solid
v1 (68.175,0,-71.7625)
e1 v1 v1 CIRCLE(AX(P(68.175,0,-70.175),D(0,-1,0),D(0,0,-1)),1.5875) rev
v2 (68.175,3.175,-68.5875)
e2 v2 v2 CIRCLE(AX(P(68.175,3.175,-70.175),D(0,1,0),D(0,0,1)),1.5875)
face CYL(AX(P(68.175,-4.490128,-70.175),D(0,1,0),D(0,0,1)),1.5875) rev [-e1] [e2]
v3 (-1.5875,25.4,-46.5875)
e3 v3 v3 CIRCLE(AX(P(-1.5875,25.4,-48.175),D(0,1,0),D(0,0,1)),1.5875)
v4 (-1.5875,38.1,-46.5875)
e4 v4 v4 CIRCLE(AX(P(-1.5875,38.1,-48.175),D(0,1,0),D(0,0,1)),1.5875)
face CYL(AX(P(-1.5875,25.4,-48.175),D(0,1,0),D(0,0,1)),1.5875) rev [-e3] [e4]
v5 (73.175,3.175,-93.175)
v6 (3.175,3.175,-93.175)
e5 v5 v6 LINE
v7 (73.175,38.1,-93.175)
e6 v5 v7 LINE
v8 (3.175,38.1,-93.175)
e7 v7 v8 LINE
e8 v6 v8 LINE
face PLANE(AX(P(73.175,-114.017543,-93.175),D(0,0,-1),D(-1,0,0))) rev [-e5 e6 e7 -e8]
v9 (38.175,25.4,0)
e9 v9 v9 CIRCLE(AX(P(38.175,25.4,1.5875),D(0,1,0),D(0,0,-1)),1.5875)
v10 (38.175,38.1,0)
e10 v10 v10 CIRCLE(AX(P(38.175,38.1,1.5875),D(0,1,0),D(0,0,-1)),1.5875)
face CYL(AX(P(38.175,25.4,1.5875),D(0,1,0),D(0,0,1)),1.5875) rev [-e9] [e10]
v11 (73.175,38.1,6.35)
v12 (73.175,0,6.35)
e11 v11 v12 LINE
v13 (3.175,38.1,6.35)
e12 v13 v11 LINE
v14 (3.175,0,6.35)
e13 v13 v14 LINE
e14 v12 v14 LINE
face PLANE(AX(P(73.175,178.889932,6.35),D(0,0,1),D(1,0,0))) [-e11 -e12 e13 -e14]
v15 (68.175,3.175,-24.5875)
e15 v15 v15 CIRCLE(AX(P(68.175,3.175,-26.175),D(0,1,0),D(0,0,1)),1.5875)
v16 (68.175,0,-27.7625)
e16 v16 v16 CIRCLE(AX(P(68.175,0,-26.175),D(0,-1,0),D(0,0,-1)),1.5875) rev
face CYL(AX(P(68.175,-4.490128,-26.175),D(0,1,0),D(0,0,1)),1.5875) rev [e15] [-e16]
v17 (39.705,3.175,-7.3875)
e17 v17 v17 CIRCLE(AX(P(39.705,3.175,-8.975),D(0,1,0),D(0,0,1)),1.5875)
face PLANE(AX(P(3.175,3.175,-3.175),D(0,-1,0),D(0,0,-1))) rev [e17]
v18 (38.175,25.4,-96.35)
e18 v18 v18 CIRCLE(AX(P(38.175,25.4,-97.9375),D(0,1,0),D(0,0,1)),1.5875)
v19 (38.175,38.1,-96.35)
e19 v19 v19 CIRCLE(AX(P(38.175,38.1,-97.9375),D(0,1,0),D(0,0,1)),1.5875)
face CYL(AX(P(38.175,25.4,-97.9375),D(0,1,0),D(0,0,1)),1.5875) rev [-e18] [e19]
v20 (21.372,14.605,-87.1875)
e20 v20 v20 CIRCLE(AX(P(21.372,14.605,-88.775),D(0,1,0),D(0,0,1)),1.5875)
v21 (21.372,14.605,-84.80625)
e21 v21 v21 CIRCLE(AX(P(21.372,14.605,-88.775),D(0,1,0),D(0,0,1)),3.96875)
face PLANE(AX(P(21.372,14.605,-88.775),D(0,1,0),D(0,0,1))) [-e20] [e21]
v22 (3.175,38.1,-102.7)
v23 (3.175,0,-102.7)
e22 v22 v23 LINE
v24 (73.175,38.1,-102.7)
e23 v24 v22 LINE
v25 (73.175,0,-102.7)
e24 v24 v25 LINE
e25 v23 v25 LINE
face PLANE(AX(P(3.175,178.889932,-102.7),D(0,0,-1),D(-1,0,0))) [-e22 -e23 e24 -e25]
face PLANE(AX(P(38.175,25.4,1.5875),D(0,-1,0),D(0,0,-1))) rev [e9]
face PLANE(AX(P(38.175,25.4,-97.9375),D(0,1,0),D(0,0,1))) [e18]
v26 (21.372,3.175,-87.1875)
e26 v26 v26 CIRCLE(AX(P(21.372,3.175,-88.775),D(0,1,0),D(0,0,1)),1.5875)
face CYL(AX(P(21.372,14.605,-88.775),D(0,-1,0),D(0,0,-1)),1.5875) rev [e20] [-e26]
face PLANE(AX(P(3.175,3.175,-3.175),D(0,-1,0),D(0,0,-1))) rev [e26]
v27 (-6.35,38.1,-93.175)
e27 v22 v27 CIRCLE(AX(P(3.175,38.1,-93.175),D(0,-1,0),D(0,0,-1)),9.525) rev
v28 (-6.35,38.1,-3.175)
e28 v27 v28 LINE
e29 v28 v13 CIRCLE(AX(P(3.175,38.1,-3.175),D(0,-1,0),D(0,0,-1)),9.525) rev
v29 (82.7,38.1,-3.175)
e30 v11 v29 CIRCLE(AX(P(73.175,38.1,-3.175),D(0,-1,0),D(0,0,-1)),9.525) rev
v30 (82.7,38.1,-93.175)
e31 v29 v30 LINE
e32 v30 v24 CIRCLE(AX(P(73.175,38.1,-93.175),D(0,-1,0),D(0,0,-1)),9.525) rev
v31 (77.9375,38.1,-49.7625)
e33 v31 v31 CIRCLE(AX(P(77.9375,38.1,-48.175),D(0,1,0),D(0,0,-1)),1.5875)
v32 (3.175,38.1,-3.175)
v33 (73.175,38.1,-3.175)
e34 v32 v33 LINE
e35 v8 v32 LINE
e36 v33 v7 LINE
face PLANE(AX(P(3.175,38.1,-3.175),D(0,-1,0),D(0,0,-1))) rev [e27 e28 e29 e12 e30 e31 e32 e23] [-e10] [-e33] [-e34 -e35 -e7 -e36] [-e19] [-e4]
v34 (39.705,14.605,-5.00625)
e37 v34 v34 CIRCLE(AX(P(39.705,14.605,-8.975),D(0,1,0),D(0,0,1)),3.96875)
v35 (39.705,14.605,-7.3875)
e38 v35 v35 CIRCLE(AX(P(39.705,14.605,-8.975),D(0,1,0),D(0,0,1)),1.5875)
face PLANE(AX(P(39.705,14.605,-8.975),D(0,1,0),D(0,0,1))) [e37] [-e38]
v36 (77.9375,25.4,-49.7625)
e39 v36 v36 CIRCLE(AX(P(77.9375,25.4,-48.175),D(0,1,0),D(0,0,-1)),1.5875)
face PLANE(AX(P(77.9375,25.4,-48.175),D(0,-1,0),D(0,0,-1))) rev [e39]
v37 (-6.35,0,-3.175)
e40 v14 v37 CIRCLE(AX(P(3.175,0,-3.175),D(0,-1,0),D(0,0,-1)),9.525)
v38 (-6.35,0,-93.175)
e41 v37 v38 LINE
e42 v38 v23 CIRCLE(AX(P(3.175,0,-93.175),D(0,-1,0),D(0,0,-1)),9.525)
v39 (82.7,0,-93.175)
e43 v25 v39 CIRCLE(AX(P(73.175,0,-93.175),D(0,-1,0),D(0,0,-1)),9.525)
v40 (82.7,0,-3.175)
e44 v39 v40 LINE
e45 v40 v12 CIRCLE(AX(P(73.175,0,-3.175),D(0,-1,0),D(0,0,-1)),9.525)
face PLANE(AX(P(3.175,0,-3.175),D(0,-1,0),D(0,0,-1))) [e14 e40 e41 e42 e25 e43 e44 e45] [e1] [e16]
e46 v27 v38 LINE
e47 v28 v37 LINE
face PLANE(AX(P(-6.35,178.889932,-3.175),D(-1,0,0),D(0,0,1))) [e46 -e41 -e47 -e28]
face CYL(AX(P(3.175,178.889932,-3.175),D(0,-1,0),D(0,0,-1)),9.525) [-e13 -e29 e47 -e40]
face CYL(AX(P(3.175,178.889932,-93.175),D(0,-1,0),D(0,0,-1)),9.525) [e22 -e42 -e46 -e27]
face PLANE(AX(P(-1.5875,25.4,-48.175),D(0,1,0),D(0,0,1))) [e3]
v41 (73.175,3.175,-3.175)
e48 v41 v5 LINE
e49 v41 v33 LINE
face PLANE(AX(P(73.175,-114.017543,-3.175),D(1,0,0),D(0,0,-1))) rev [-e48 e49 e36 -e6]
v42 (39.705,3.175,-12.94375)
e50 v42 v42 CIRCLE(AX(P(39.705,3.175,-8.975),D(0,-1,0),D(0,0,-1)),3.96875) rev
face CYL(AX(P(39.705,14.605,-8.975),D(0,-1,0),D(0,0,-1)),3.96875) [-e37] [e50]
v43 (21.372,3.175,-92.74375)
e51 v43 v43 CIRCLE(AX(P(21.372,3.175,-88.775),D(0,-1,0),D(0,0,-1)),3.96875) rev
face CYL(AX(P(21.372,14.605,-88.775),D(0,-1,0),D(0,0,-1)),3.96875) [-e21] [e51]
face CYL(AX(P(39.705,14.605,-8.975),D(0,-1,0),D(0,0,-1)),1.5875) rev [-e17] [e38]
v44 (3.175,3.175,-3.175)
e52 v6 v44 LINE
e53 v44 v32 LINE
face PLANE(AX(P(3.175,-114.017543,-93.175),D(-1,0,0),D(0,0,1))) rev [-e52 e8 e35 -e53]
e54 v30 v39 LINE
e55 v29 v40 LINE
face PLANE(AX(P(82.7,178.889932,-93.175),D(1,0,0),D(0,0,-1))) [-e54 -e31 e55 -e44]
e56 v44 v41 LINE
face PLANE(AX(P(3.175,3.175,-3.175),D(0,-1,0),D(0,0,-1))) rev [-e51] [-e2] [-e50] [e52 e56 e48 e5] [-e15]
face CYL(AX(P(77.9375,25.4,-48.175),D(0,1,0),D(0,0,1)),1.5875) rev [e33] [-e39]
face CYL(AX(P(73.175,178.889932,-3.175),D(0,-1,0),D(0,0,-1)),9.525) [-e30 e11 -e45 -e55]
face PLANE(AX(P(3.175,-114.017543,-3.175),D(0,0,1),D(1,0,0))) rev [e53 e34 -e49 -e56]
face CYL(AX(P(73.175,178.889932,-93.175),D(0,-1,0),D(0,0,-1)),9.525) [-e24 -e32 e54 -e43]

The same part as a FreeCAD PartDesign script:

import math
import FreeCAD as App
import Part
import Sketcher
from FreeCAD import Vector
Q = App.Units.Quantity

doc = App.newDocument("Part")
body = doc.addObject("PartDesign::Body", "Body")

# Sketch on XZ plane
sketch1 = body.newObject("Sketcher::SketchObject", "Sketch")
sketch1.AttachmentSupport = (doc.getObject("XZ_Plane"), [""])
sketch1.MapMode = "FlatFace"
sketch1.addGeometry([
    Part.LineSegment(Vector(3.2, 0, 0), Vector(73.2, 0, 0)),  # 0
    Part.ArcOfCircle(Part.Circle(Vector(73.2, -3.2, 0), Vector(0, 0, 1), 3.2), math.radians(0), math.radians(90)),  # 1
    Part.LineSegment(Vector(76.3, -3.2, 0), Vector(76.3, -93.2, 0)),  # 2
    Part.ArcOfCircle(Part.Circle(Vector(73.2, -93.2, 0), Vector(0, 0, 1), 3.2), math.radians(-90), math.radians(0)),  # 3
    Part.LineSegment(Vector(73.2, -96.4, 0), Vector(3.2, -96.4, 0)),  # 4
    Part.ArcOfCircle(Part.Circle(Vector(3.2, -93.2, 0), Vector(0, 0, 1), 3.2), math.radians(-180), math.radians(-90)),  # 5
    Part.LineSegment(Vector(0, -93.2, 0), Vector(0, -3.2, 0)),  # 6
    Part.ArcOfCircle(Part.Circle(Vector(3.2, -3.2, 0), Vector(0, 0, 1), 3.2), math.radians(90), math.radians(180)),  # 7
], False)
sketch1.addConstraint([
    Sketcher.Constraint("Tangent", 0, 2, 1, 2),
    Sketcher.Constraint("Tangent", 1, 1, 2, 1),
    Sketcher.Constraint("Tangent", 2, 2, 3, 2),
    Sketcher.Constraint("Tangent", 3, 1, 4, 1),
    Sketcher.Constraint("Tangent", 4, 2, 5, 2),
    Sketcher.Constraint("Tangent", 5, 1, 6, 1),
    Sketcher.Constraint("Tangent", 6, 2, 7, 2),
    Sketcher.Constraint("Tangent", 7, 1, 0, 1),
    Sketcher.Constraint("Horizontal", 0),
    Sketcher.Constraint("Vertical", 2),
    Sketcher.Constraint("Horizontal", 4),
    Sketcher.Constraint("Vertical", 6),
    Sketcher.Constraint("Equal", 1, 3),
    Sketcher.Constraint("Equal", 3, 5),
    Sketcher.Constraint("Equal", 5, 7),
    Sketcher.Constraint("PointOnObject", 0, 2, -1),
    Sketcher.Constraint("PointOnObject", 5, 1, -2),
    Sketcher.Constraint("Radius", 1, Q("0.125 in")),
    Sketcher.Constraint("DistanceX", 0, 1, 0, 2, Q("70 mm")),
    Sketcher.Constraint("DistanceY", 2, 2, 2, 1, Q("90 mm")),
])
pad1 = body.newObject("PartDesign::Pad", "Pad")
pad1.Profile = sketch1
pad1.Length = Q("1.5 in")
pad1.Reversed = True

# Sketch on XZ plane
sketch2 = body.newObject("Sketcher::SketchObject", "Sketch001")
sketch2.AttachmentSupport = (doc.getObject("XZ_Plane"), [""])
sketch2.MapMode = "FlatFace"
sketch2.AttachmentOffset = App.Placement(Vector(0, 0, -1.5 * 25.4), App.Rotation())
sketch2.addGeometry([
    Part.LineSegment(Vector(3, -93, 0), Vector(3, -3, 0)),
    Part.LineSegment(Vector(3, -3, 0), Vector(73, -3, 0)),
    Part.LineSegment(Vector(73, -3, 0), Vector(73, -93, 0)),
    Part.LineSegment(Vector(73, -93, 0), Vector(3, -93, 0)),
], False)
sketch2.addConstraint([
    Sketcher.Constraint("Coincident", 0, 2, 1, 1),
    Sketcher.Constraint("Coincident", 1, 2, 2, 1),
    Sketcher.Constraint("Coincident", 2, 2, 3, 1),
    Sketcher.Constraint("Coincident", 3, 2, 0, 1),
    Sketcher.Constraint("Vertical", 0),
    Sketcher.Constraint("Horizontal", 1),
    Sketcher.Constraint("Vertical", 2),
    Sketcher.Constraint("Horizontal", 3),
    Sketcher.Constraint("DistanceX", -1, 1, 0, 2, Q("0.125 in")),
    Sketcher.Constraint("DistanceY", 0, 2, -1, 1, Q("0.125 in")),
    Sketcher.Constraint("DistanceX", 1, 1, 1, 2, Q("70 mm")),
    Sketcher.Constraint("DistanceY", 0, 1, 0, 2, Q("90 mm")),
])
pocket1 = body.newObject("PartDesign::Pocket", "Pocket")
pocket1.Profile = sketch2
pocket1.Length = Q("1.375 in")
pocket1.Reversed = True

# Sketch on XZ plane
sketch3 = body.newObject("Sketcher::SketchObject", "Sketch002")
sketch3.AttachmentSupport = (doc.getObject("XZ_Plane"), [""])
sketch3.MapMode = "FlatFace"
sketch3.AttachmentOffset = App.Placement(Vector(0, 0, -0.125 * 25.4), App.Rotation())
sketch3.addGeometry([
    Part.Circle(Vector(21.4, -88.8, 0), Vector(0, 0, 1), 4),
    Part.Circle(Vector(21.4, -88.8, 0), Vector(0, 0, 1), 1.6),
    Part.Circle(Vector(39.7, -9, 0), Vector(0, 0, 1), 4),
    Part.Circle(Vector(39.7, -9, 0), Vector(0, 0, 1), 1.6),
], False)
sketch3.addConstraint([
    Sketcher.Constraint("Coincident", 1, 3, 0, 3),
    Sketcher.Constraint("Coincident", 3, 3, 2, 3),
    Sketcher.Constraint("Equal", 0, 2),
    Sketcher.Constraint("Equal", 1, 3),
    Sketcher.Constraint("Diameter", 0, Q("0.3125 in")),
    Sketcher.Constraint("Diameter", 1, Q("0.125 in")),
    Sketcher.Constraint("DistanceX", -1, 1, 0, 3, Q("21.372 mm")),
    Sketcher.Constraint("DistanceY", 0, 3, -1, 1, Q("88.775 mm")),
    Sketcher.Constraint("DistanceX", -1, 1, 2, 3, Q("39.705 mm")),
    Sketcher.Constraint("DistanceY", 2, 3, -1, 1, Q("8.975 mm")),
])
pad2 = body.newObject("PartDesign::Pad", "Pad001")
pad2.Profile = sketch3
pad2.Length = Q("0.45 in")
pad2.Reversed = True

# Sketch on XZ plane
sketch4 = body.newObject("Sketcher::SketchObject", "Sketch003")
sketch4.AttachmentSupport = (doc.getObject("XZ_Plane"), [""])
sketch4.MapMode = "FlatFace"
sketch4.addGeometry([
    Part.LineSegment(Vector(-6.3, -3.2, 0), Vector(-6.3, -93.2, 0)),  # 0
    Part.ArcOfCircle(Part.Circle(Vector(3.2, -93.2, 0), Vector(0, 0, 1), 9.5), math.radians(180), math.radians(270)),  # 1
    Part.LineSegment(Vector(3.2, -102.7, 0), Vector(73.2, -102.7, 0)),  # 2
    Part.ArcOfCircle(Part.Circle(Vector(73.2, -93.2, 0), Vector(0, 0, 1), 9.5), math.radians(-90), math.radians(0)),  # 3
    Part.LineSegment(Vector(82.7, -93.2, 0), Vector(82.7, -3.2, 0)),  # 4
    Part.ArcOfCircle(Part.Circle(Vector(73.2, -3.2, 0), Vector(0, 0, 1), 9.5), math.radians(0), math.radians(90)),  # 5
    Part.LineSegment(Vector(73.2, 6.3, 0), Vector(3.2, 6.3, 0)),  # 6
    Part.ArcOfCircle(Part.Circle(Vector(3.2, -3.2, 0), Vector(0, 0, 1), 9.5), math.radians(90), math.radians(180)),  # 7
    Part.LineSegment(Vector(0, -93.2, 0), Vector(0, -3.2, 0)),  # 8
    Part.ArcOfCircle(Part.Circle(Vector(3.2, -3.2, 0), Vector(0, 0, 1), 3.2), math.radians(90), math.radians(180)),  # 9
    Part.LineSegment(Vector(3.2, 0, 0), Vector(73.2, 0, 0)),  # 10
    Part.ArcOfCircle(Part.Circle(Vector(73.2, -3.2, 0), Vector(0, 0, 1), 3.2), math.radians(0), math.radians(90)),  # 11
    Part.LineSegment(Vector(76.3, -3.2, 0), Vector(76.3, -93.2, 0)),  # 12
    Part.ArcOfCircle(Part.Circle(Vector(73.2, -93.2, 0), Vector(0, 0, 1), 3.2), math.radians(-90), math.radians(0)),  # 13
    Part.LineSegment(Vector(73.2, -96.4, 0), Vector(3.2, -96.4, 0)),  # 14
    Part.ArcOfCircle(Part.Circle(Vector(3.2, -93.2, 0), Vector(0, 0, 1), 3.2), math.radians(-180), math.radians(-90)),  # 15
], False)
sketch4.addConstraint([
    Sketcher.Constraint("Tangent", 0, 2, 1, 1),
    Sketcher.Constraint("Tangent", 1, 2, 2, 1),
    Sketcher.Constraint("Tangent", 2, 2, 3, 1),
    Sketcher.Constraint("Tangent", 3, 2, 4, 1),
    Sketcher.Constraint("Tangent", 4, 2, 5, 1),
    Sketcher.Constraint("Tangent", 5, 2, 6, 1),
    Sketcher.Constraint("Tangent", 6, 2, 7, 1),
    Sketcher.Constraint("Tangent", 7, 2, 0, 1),
    Sketcher.Constraint("Tangent", 8, 2, 9, 2),
    Sketcher.Constraint("Tangent", 9, 1, 10, 1),
    Sketcher.Constraint("Tangent", 10, 2, 11, 2),
    Sketcher.Constraint("Tangent", 11, 1, 12, 1),
    Sketcher.Constraint("Tangent", 12, 2, 13, 2),
    Sketcher.Constraint("Tangent", 13, 1, 14, 1),
    Sketcher.Constraint("Tangent", 14, 2, 15, 2),
    Sketcher.Constraint("Tangent", 15, 1, 8, 1),
    Sketcher.Constraint("Vertical", 0),
    Sketcher.Constraint("Horizontal", 2),
    Sketcher.Constraint("Vertical", 4),
    Sketcher.Constraint("Horizontal", 6),
    Sketcher.Constraint("Vertical", 8),
    Sketcher.Constraint("Horizontal", 10),
    Sketcher.Constraint("Vertical", 12),
    Sketcher.Constraint("Horizontal", 14),
    Sketcher.Constraint("Coincident", 9, 3, 7, 3),
    Sketcher.Constraint("Coincident", 11, 3, 5, 3),
    Sketcher.Constraint("Coincident", 13, 3, 3, 3),
    Sketcher.Constraint("Equal", 1, 3),
    Sketcher.Constraint("Equal", 3, 5),
    Sketcher.Constraint("Equal", 5, 7),
    Sketcher.Constraint("Equal", 13, 15),
    Sketcher.Constraint("PointOnObject", 8, 2, -2),
    Sketcher.Constraint("PointOnObject", 9, 1, -1),
    Sketcher.Constraint("Radius", 1, Q("0.375 in")),
    Sketcher.Constraint("Radius", 9, Q("0.125 in")),
    Sketcher.Constraint("DistanceX", 2, 1, 2, 2, Q("70 mm")),
    Sketcher.Constraint("DistanceY", 0, 2, 0, 1, Q("90 mm")),
])
pad3 = body.newObject("PartDesign::Pad", "Pad002")
pad3.Profile = sketch4
pad3.Length = Q("1.5 in")
pad3.Reversed = True

# Sketch on XZ plane
sketch5 = body.newObject("Sketcher::SketchObject", "Sketch004")
sketch5.AttachmentSupport = (doc.getObject("XZ_Plane"), [""])
sketch5.MapMode = "FlatFace"
sketch5.AttachmentOffset = App.Placement(Vector(0, 0, -1.5 * 25.4), App.Rotation())
sketch5.addGeometry([
    Part.Circle(Vector(-1.6, -48.2, 0), Vector(0, 0, 1), 1.6),
    Part.Circle(Vector(38.2, -97.9, 0), Vector(0, 0, 1), 1.6),
    Part.Circle(Vector(38.2, 1.6, 0), Vector(0, 0, 1), 1.6),
    Part.Circle(Vector(77.9, -48.2, 0), Vector(0, 0, 1), 1.6),
], False)
sketch5.addConstraint([
    Sketcher.Constraint("Equal", 0, 1),
    Sketcher.Constraint("Equal", 1, 2),
    Sketcher.Constraint("Equal", 2, 3),
    Sketcher.Constraint("Horizontal", 0, 3, 3, 3),
    Sketcher.Constraint("Vertical", 1, 3, 2, 3),
    Sketcher.Constraint("Diameter", 0, Q("0.125 in")),
    Sketcher.Constraint("DistanceX", 0, 3, -1, 1, Q("0.0625 in")),
    Sketcher.Constraint("DistanceY", -1, 1, 2, 3, Q("0.0625 in")),
    Sketcher.Constraint("DistanceY", 0, 3, -1, 1, Q("48.175 mm")),
    Sketcher.Constraint("DistanceX", -1, 1, 1, 3, Q("38.175 mm")),
    Sketcher.Constraint("DistanceY", 1, 3, -1, 1, Q("97.9375 mm")),
    Sketcher.Constraint("DistanceX", -1, 1, 3, 3, Q("77.9375 mm")),
])
pocket2 = body.newObject("PartDesign::Pocket", "Pocket001")
pocket2.Profile = sketch5
pocket2.Length = Q("0.5 in")
pocket2.Reversed = True

# Sketch on XZ plane
sketch6 = body.newObject("Sketcher::SketchObject", "Sketch005")
sketch6.AttachmentSupport = (doc.getObject("XZ_Plane"), [""])
sketch6.MapMode = "FlatFace"
sketch6.AttachmentOffset = App.Placement(Vector(0, 0, -0.125 * 25.4), App.Rotation())
sketch6.addGeometry([
    Part.Circle(Vector(68.2, -70.2, 0), Vector(0, 0, 1), 1.6),
    Part.Circle(Vector(68.2, -26.2, 0), Vector(0, 0, 1), 1.6),
], False)
sketch6.addConstraint([
    Sketcher.Constraint("Equal", 0, 1),
    Sketcher.Constraint("Vertical", 0, 3, 1, 3),
    Sketcher.Constraint("Diameter", 0, Q("0.125 in")),
    Sketcher.Constraint("DistanceX", -1, 1, 0, 3, Q("68.175 mm")),
    Sketcher.Constraint("DistanceY", 0, 3, -1, 1, Q("70.175 mm")),
    Sketcher.Constraint("DistanceY", 1, 3, -1, 1, Q("26.175 mm")),
])
pocket3 = body.newObject("PartDesign::Pocket", "Pocket002")
pocket3.Profile = sketch6
pocket3.Length = Q("0.125 in")
pocket3.Reversed = True

doc.recompute()
